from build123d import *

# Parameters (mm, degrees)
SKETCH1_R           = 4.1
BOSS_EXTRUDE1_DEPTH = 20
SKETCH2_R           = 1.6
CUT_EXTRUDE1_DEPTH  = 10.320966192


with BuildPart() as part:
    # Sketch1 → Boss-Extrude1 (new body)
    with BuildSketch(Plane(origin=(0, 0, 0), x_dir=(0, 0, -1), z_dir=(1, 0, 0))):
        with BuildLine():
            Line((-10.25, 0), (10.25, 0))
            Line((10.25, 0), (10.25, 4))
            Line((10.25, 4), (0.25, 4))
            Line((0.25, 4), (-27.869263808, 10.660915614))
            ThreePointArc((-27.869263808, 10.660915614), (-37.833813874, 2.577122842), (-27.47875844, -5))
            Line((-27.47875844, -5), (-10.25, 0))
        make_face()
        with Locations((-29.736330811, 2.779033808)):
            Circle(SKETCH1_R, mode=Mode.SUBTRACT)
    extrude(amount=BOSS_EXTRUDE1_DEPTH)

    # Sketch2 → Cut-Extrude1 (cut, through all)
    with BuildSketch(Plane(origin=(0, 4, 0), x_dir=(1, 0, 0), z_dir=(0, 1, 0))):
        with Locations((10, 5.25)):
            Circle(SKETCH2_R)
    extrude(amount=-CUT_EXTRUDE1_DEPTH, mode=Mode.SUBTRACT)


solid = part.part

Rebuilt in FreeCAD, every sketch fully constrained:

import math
import FreeCAD as App
import Part
import Sketcher
from FreeCAD import Vector
Q = App.Units.Quantity

doc = App.newDocument("Part")
body = doc.addObject("PartDesign::Body", "Body")

# Sketch on YZ plane
sketch1 = body.newObject("Sketcher::SketchObject", "Sketch")
sketch1.AttachmentSupport = (doc.getObject("YZ_Plane"), [""])
sketch1.MapMode = "FlatFace"
sketch1.addGeometry(Part.LineSegment(Vector(0, 10.2, 0), Vector(0, -10.2, 0)), False)
sketch1.addGeometry(Part.LineSegment(Vector(0, -10.2, 0), Vector(4, -10.2, 0)), False)
sketch1.addGeometry(Part.LineSegment(Vector(4, -10.2, 0), Vector(4, -0.2, 0)), False)
sketch1.addGeometry(Part.LineSegment(Vector(4, -0.2, 0), Vector(10.7, 27.9, 0)), False)
sketch1.addGeometry(Part.ArcOfCircle(Part.Circle(Vector(2.8, 29.7, 0), Vector(0, 0, 1), 8.1), math.radians(-13), math.radians(196)), False)
sketch1.addGeometry(Part.LineSegment(Vector(-5, 27.5, 0), Vector(0, 10.2, 0)), False)
sketch1.addGeometry(Part.Circle(Vector(2.8, 29.7, 0), Vector(0, 0, 1), 4.1), False)
sketch1.addConstraint(Sketcher.Constraint("Coincident", 0, 2, 1, 1))
sketch1.addConstraint(Sketcher.Constraint("Coincident", 1, 2, 2, 1))
sketch1.addConstraint(Sketcher.Constraint("Coincident", 2, 2, 3, 1))
sketch1.addConstraint(Sketcher.Constraint("Tangent", 3, 2, 4, 1))
sketch1.addConstraint(Sketcher.Constraint("Tangent", 4, 2, 5, 1))
sketch1.addConstraint(Sketcher.Constraint("Coincident", 5, 2, 0, 1))
sketch1.addConstraint(Sketcher.Constraint("Vertical", 0))
sketch1.addConstraint(Sketcher.Constraint("Horizontal", 1))
sketch1.addConstraint(Sketcher.Constraint("Vertical", 2))
sketch1.addConstraint(Sketcher.Constraint("Coincident", 6, 3, 4, 3))
sketch1.addConstraint(Sketcher.Constraint("Symmetric", 0, 2, 5, 2, -1, 1))
sketch1.addConstraint(Sketcher.Constraint("Diameter", 6, Q("8.2 mm")))
sketch1.addConstraint(Sketcher.Constraint("Radius", 4, Q("8.1 mm")))
sketch1.addConstraint(Sketcher.Constraint("DistanceX", 1, 1, 1, 2, Q("4 mm")))
sketch1.addConstraint(Sketcher.Constraint("DistanceY", 2, 1, 2, 2, Q("10 mm")))
sketch1.addConstraint(Sketcher.Constraint("DistanceY", 0, 2, 0, 1, Q("20.5 mm")))
sketch1.addConstraint(Sketcher.Constraint("DistanceX", 4, 2, -1, 1, Q("5 mm")))
sketch1.addConstraint(Sketcher.Constraint("Distance", 3, Q("28.897418 mm")))
pad1 = body.newObject("PartDesign::Pad", "Pad")
pad1.Profile = sketch1
pad1.Length = 20

# Sketch on XZ plane
sketch2 = body.newObject("Sketcher::SketchObject", "Sketch001")
sketch2.AttachmentSupport = (doc.getObject("XZ_Plane"), [""])
sketch2.MapMode = "FlatFace"
sketch2.AttachmentOffset = App.Placement(Vector(0, 0, -4), App.Rotation())
sketch2.addGeometry(Part.Circle(Vector(10, -5.2, 0), Vector(0, 0, 1), 1.6), False)
sketch2.addConstraint(Sketcher.Constraint("Diameter", 0, Q("3.2 mm")))
sketch2.addConstraint(Sketcher.Constraint("DistanceX", -1, 1, 0, 3, Q("10 mm")))
sketch2.addConstraint(Sketcher.Constraint("DistanceY", 0, 3, -1, 1, Q("5.25 mm")))
pocket1 = body.newObject("PartDesign::Pocket", "Pocket")
pocket1.Profile = sketch2
pocket1.Type = "ThroughAll"
pocket1.Reversed = True

doc.recompute()
